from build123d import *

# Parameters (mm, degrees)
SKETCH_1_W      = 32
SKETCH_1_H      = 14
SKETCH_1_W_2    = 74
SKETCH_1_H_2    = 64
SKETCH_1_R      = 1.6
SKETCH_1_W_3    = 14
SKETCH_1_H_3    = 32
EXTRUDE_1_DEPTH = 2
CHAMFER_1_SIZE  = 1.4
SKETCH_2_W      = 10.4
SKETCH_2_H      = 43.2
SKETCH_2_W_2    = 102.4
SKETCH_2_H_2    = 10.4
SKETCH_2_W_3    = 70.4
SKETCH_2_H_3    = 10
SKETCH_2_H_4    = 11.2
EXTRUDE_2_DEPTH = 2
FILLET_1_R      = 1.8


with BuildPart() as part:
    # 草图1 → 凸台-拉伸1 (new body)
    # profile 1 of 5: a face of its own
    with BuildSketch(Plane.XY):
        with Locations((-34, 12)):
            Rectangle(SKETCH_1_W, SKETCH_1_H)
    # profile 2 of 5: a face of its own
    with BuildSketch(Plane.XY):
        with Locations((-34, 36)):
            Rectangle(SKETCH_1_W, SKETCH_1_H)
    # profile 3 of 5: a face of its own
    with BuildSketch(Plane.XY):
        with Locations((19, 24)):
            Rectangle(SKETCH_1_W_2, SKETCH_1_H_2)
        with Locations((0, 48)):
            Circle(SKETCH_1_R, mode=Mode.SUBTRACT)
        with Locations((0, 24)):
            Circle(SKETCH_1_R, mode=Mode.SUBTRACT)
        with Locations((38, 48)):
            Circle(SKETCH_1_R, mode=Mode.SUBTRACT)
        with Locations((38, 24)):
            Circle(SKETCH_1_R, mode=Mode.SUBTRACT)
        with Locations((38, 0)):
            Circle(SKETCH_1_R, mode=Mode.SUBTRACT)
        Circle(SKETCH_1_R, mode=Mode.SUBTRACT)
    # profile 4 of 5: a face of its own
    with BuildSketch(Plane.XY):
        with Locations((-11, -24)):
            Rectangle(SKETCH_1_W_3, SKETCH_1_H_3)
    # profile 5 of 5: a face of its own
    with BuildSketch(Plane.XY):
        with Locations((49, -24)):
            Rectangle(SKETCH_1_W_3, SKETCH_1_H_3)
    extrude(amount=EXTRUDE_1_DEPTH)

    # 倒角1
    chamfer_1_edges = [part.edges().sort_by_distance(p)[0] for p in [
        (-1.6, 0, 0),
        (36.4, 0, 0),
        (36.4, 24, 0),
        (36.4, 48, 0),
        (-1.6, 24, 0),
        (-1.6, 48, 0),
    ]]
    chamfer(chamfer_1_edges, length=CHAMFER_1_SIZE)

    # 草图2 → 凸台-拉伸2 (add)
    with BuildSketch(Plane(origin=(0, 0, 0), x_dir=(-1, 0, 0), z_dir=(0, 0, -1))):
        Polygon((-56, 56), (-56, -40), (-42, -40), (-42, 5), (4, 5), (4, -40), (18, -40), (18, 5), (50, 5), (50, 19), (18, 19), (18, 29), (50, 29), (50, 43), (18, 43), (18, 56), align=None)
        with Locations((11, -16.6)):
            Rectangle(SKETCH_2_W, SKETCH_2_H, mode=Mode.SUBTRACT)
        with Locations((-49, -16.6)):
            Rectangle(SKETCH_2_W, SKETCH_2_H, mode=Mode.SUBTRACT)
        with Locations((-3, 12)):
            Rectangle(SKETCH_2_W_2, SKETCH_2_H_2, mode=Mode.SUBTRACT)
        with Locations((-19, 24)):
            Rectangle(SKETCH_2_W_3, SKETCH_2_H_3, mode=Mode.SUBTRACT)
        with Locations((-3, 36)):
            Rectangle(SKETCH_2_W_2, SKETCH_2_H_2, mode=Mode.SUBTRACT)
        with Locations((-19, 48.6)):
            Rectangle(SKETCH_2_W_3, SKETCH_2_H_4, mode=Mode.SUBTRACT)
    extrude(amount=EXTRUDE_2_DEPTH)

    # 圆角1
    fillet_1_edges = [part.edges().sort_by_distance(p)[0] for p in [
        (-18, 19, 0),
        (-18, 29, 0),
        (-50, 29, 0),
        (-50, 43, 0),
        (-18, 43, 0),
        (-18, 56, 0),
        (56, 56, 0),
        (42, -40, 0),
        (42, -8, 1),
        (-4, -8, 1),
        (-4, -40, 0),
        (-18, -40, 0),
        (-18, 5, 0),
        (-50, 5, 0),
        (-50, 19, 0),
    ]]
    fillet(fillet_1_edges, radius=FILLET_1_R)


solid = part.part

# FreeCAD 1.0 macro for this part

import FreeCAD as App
import Part
import Sketcher

V = App.Vector


def edges_at(feature, points):
    """Names of the edges that pass closest to the given points."""
    edges = feature.Shape.Edges
    near = lambda p: min(range(len(edges)), key=lambda i: edges[i].distToShape(Part.Vertex(*p))[0])
    return sorted({f"Edge{near(p) + 1}" for p in points})

doc = App.newDocument("Part")
body = doc.addObject("PartDesign::Body", "Body")

# Sketch on XY plane
sketch1 = body.newObject("Sketcher::SketchObject", "Sketch")
sketch1.AttachmentSupport = (doc.getObject("XY_Plane"), [""])
sketch1.MapMode = "FlatFace"
sketch1.addGeometry([
    Part.LineSegment(V(-50, 19, 0), V(-50, 5, 0)),  # 0
    Part.LineSegment(V(-50, 5, 0), V(-18, 5, 0)),  # 1
    Part.LineSegment(V(-18, 5, 0), V(-18, -40, 0)),  # 2
    Part.LineSegment(V(-18, -40, 0), V(-4, -40, 0)),  # 3
    Part.LineSegment(V(-4, -40, 0), V(-4, -8, 0)),  # 4
    Part.LineSegment(V(-4, -8, 0), V(42, -8, 0)),  # 5
    Part.LineSegment(V(42, -8, 0), V(42, -40, 0)),  # 6
    Part.LineSegment(V(42, -40, 0), V(56, -40, 0)),  # 7
    Part.LineSegment(V(56, -40, 0), V(56, 56, 0)),  # 8
    Part.LineSegment(V(56, 56, 0), V(-18, 56, 0)),  # 9
    Part.LineSegment(V(-18, 56, 0), V(-18, 43, 0)),  # 10
    Part.LineSegment(V(-18, 43, 0), V(-50, 43, 0)),  # 11
    Part.LineSegment(V(-50, 43, 0), V(-50, 29, 0)),  # 12
    Part.LineSegment(V(-50, 29, 0), V(-18, 29, 0)),  # 13
    Part.LineSegment(V(-18, 29, 0), V(-18, 19, 0)),  # 14
    Part.LineSegment(V(-18, 19, 0), V(-50, 19, 0)),  # 15
    Part.Circle(V(38, 48, 0), V(0, 0, 1), 1.6),  # 16
    Part.Circle(V(0, 0, 0), V(0, 0, 1), 1.6),  # 17
    Part.Circle(V(38, 0, 0), V(0, 0, 1), 1.6),  # 18
    Part.Circle(V(0, 24, 0), V(0, 0, 1), 1.6),  # 19
    Part.Circle(V(0, 48, 0), V(0, 0, 1), 1.6),  # 20
    Part.Circle(V(38, 24, 0), V(0, 0, 1), 1.6),  # 21
], False)
sketch1.addConstraint([
    Sketcher.Constraint("Coincident", 0, 2, 1, 1),
    Sketcher.Constraint("Coincident", 1, 2, 2, 1),
    Sketcher.Constraint("Coincident", 2, 2, 3, 1),
    Sketcher.Constraint("Coincident", 3, 2, 4, 1),
    Sketcher.Constraint("Coincident", 4, 2, 5, 1),
    Sketcher.Constraint("Coincident", 5, 2, 6, 1),
    Sketcher.Constraint("Coincident", 6, 2, 7, 1),
    Sketcher.Constraint("Coincident", 7, 2, 8, 1),
    Sketcher.Constraint("Coincident", 8, 2, 9, 1),
    Sketcher.Constraint("Coincident", 9, 2, 10, 1),
    Sketcher.Constraint("Coincident", 10, 2, 11, 1),
    Sketcher.Constraint("Coincident", 11, 2, 12, 1),
    Sketcher.Constraint("Coincident", 12, 2, 13, 1),
    Sketcher.Constraint("Coincident", 13, 2, 14, 1),
    Sketcher.Constraint("Coincident", 14, 2, 15, 1),
    Sketcher.Constraint("Coincident", 15, 2, 0, 1),
    Sketcher.Constraint("Vertical", 0),
    Sketcher.Constraint("Horizontal", 1),
    Sketcher.Constraint("Vertical", 2),
    Sketcher.Constraint("Horizontal", 3),
    Sketcher.Constraint("Vertical", 4),
    Sketcher.Constraint("Horizontal", 5),
    Sketcher.Constraint("Vertical", 6),
    Sketcher.Constraint("Horizontal", 7),
    Sketcher.Constraint("Vertical", 8),
    Sketcher.Constraint("Horizontal", 9),
    Sketcher.Constraint("Vertical", 10),
    Sketcher.Constraint("Horizontal", 11),
    Sketcher.Constraint("Vertical", 12),
    Sketcher.Constraint("Horizontal", 13),
    Sketcher.Constraint("Vertical", 14),
    Sketcher.Constraint("Horizontal", 15),
    Sketcher.Constraint("Coincident", 17, 3, -1, 1),
    Sketcher.Constraint("Equal", 16, 17),
    Sketcher.Constraint("Equal", 17, 18),
    Sketcher.Constraint("Equal", 18, 19),
    Sketcher.Constraint("Equal", 19, 20),
    Sketcher.Constraint("Equal", 20, 21),
    Sketcher.Constraint("PointOnObject", 18, 3, -1),
    Sketcher.Constraint("PointOnObject", 19, 3, -2),
    Sketcher.Constraint("PointOnObject", 20, 3, -2),
    Sketcher.Constraint("Horizontal", 16, 3, 20, 3),
    Sketcher.Constraint("Horizontal", 19, 3, 21, 3),
    Sketcher.Constraint("Horizontal", 3, 2, 6, 2),
    Sketcher.Constraint("Vertical", 16, 3, 18, 3),
    Sketcher.Constraint("Vertical", 18, 3, 21, 3),
    Sketcher.Constraint("Vertical", 2, 2, 9, 2),
    Sketcher.Constraint("Vertical", 0, 2, 11, 2),
    Sketcher.Constraint("Vertical", 10, 2, 13, 2),
    Sketcher.Constraint("Equal", 3, 7),
    Sketcher.Constraint("Equal", 7, 0),
    Sketcher.Constraint("Equal", 15, 4),
    Sketcher.Constraint("Equal", 0, 12),
    Sketcher.Constraint("Diameter", 16, 3.2),
    Sketcher.Constraint("DistanceX", 1, 1, 1, 2, 32.0),
    Sketcher.Constraint("DistanceX", 3, 1, 3, 2, 14.0),
    Sketcher.Constraint("DistanceX", 5, 1, 5, 2, 46.0),
    Sketcher.Constraint("DistanceY", 2, 2, 2, 1, 45.0),
    Sketcher.Constraint("DistanceY", 8, 1, 8, 2, 96.0),
    Sketcher.Constraint("DistanceY", 10, 2, 10, 1, 13.0),
    Sketcher.Constraint("DistanceX", -1, 1, 16, 3, 38.0),
    Sketcher.Constraint("DistanceY", -1, 1, 16, 3, 48.0),
    Sketcher.Constraint("DistanceY", -1, 1, 19, 3, 24.0),
    Sketcher.Constraint("DistanceX", 0, 2, -1, 1, 50.0),
    Sketcher.Constraint("DistanceY", -1, 1, 0, 2, 5.0),
])
pad1 = body.newObject("PartDesign::Pad", "Pad")
pad1.Profile = sketch1
pad1.Length = 2
doc.recompute()

chamfer = body.newObject("PartDesign::Chamfer", "Chamfer")
chamfer.Base = (pad1, edges_at(pad1, [
    (-1.6, 0, 0),
    (36.4, 0, 0),
    (36.4, 24, 0),
    (36.4, 48, 0),
    (-1.6, 24, 0),
    (-1.6, 48, 0),
]))
chamfer.Size = 1.4

# Sketch on XY plane
sketch2 = body.newObject("Sketcher::SketchObject", "Sketch001")
sketch2.AttachmentSupport = (doc.getObject("XY_Plane"), [""])
sketch2.MapMode = "FlatFace"
sketch2.addGeometry([
    Part.LineSegment(V(56, 56, 0), V(56, -40, 0)),  # 0
    Part.LineSegment(V(56, -40, 0), V(42, -40, 0)),  # 1
    Part.LineSegment(V(42, -40, 0), V(42, 5, 0)),  # 2
    Part.LineSegment(V(42, 5, 0), V(-4, 5, 0)),  # 3
    Part.LineSegment(V(-4, 5, 0), V(-4, -40, 0)),  # 4
    Part.LineSegment(V(-4, -40, 0), V(-18, -40, 0)),  # 5
    Part.LineSegment(V(-18, -40, 0), V(-18, 5, 0)),  # 6
    Part.LineSegment(V(-18, 5, 0), V(-50, 5, 0)),  # 7
    Part.LineSegment(V(-50, 5, 0), V(-50, 19, 0)),  # 8
    Part.LineSegment(V(-50, 19, 0), V(-18, 19, 0)),  # 9
    Part.LineSegment(V(-18, 19, 0), V(-18, 29, 0)),  # 10
    Part.LineSegment(V(-18, 29, 0), V(-50, 29, 0)),  # 11
    Part.LineSegment(V(-50, 29, 0), V(-50, 43, 0)),  # 12
    Part.LineSegment(V(-50, 43, 0), V(-18, 43, 0)),  # 13
    Part.LineSegment(V(-18, 43, 0), V(-18, 56, 0)),  # 14
    Part.LineSegment(V(-18, 56, 0), V(56, 56, 0)),  # 15
    Part.LineSegment(V(44, -38, 0), V(54, -38, 0)),  # 16
    Part.LineSegment(V(54, -38, 0), V(54, 5, 0)),  # 17
    Part.LineSegment(V(54, 5, 0), V(44, 5, 0)),  # 18
    Part.LineSegment(V(44, 5, 0), V(44, -38, 0)),  # 19
    Part.LineSegment(V(-16, -38, 0), V(-6, -38, 0)),  # 20
    Part.LineSegment(V(-6, -38, 0), V(-6, 5, 0)),  # 21
    Part.LineSegment(V(-6, 5, 0), V(-16, 5, 0)),  # 22
    Part.LineSegment(V(-16, 5, 0), V(-16, -38, 0)),  # 23
    Part.LineSegment(V(-16, 19, 0), V(54, 19, 0)),  # 24
    Part.LineSegment(V(54, 19, 0), V(54, 29, 0)),  # 25
    Part.LineSegment(V(54, 29, 0), V(-16, 29, 0)),  # 26
    Part.LineSegment(V(-16, 29, 0), V(-16, 19, 0)),  # 27
    Part.LineSegment(V(-16, 43, 0), V(54, 43, 0)),  # 28
    Part.LineSegment(V(54, 43, 0), V(54, 54, 0)),  # 29
    Part.LineSegment(V(54, 54, 0), V(-16, 54, 0)),  # 30
    Part.LineSegment(V(-16, 54, 0), V(-16, 43, 0)),  # 31
    Part.LineSegment(V(-48, 7, 0), V(54, 7, 0)),  # 32
    Part.LineSegment(V(54, 7, 0), V(54, 17, 0)),  # 33
    Part.LineSegment(V(54, 17, 0), V(-48, 17, 0)),  # 34
    Part.LineSegment(V(-48, 17, 0), V(-48, 7, 0)),  # 35
    Part.LineSegment(V(-48, 31, 0), V(54, 31, 0)),  # 36
    Part.LineSegment(V(54, 31, 0), V(54, 41, 0)),  # 37
    Part.LineSegment(V(54, 41, 0), V(-48, 41, 0)),  # 38
    Part.LineSegment(V(-48, 41, 0), V(-48, 31, 0)),  # 39
], False)
sketch2.addConstraint([
    Sketcher.Constraint("Coincident", 0, 2, 1, 1),
    Sketcher.Constraint("Coincident", 1, 2, 2, 1),
    Sketcher.Constraint("Coincident", 2, 2, 3, 1),
    Sketcher.Constraint("Coincident", 3, 2, 4, 1),
    Sketcher.Constraint("Coincident", 4, 2, 5, 1),
    Sketcher.Constraint("Coincident", 5, 2, 6, 1),
    Sketcher.Constraint("Coincident", 6, 2, 7, 1),
    Sketcher.Constraint("Coincident", 7, 2, 8, 1),
    Sketcher.Constraint("Coincident", 8, 2, 9, 1),
    Sketcher.Constraint("Coincident", 9, 2, 10, 1),
    Sketcher.Constraint("Coincident", 10, 2, 11, 1),
    Sketcher.Constraint("Coincident", 11, 2, 12, 1),
    Sketcher.Constraint("Coincident", 12, 2, 13, 1),
    Sketcher.Constraint("Coincident", 13, 2, 14, 1),
    Sketcher.Constraint("Coincident", 14, 2, 15, 1),
    Sketcher.Constraint("Coincident", 15, 2, 0, 1),
    Sketcher.Constraint("Coincident", 16, 2, 17, 1),
    Sketcher.Constraint("Coincident", 17, 2, 18, 1),
    Sketcher.Constraint("Coincident", 18, 2, 19, 1),
    Sketcher.Constraint("Coincident", 19, 2, 16, 1),
    Sketcher.Constraint("Coincident", 20, 2, 21, 1),
    Sketcher.Constraint("Coincident", 21, 2, 22, 1),
    Sketcher.Constraint("Coincident", 22, 2, 23, 1),
    Sketcher.Constraint("Coincident", 23, 2, 20, 1),
    Sketcher.Constraint("Coincident", 24, 2, 25, 1),
    Sketcher.Constraint("Coincident", 25, 2, 26, 1),
    Sketcher.Constraint("Coincident", 26, 2, 27, 1),
    Sketcher.Constraint("Coincident", 27, 2, 24, 1),
    Sketcher.Constraint("Coincident", 28, 2, 29, 1),
    Sketcher.Constraint("Coincident", 29, 2, 30, 1),
    Sketcher.Constraint("Coincident", 30, 2, 31, 1),
    Sketcher.Constraint("Coincident", 31, 2, 28, 1),
    Sketcher.Constraint("Coincident", 32, 2, 33, 1),
    Sketcher.Constraint("Coincident", 33, 2, 34, 1),
    Sketcher.Constraint("Coincident", 34, 2, 35, 1),
    Sketcher.Constraint("Coincident", 35, 2, 32, 1),
    Sketcher.Constraint("Coincident", 36, 2, 37, 1),
    Sketcher.Constraint("Coincident", 37, 2, 38, 1),
    Sketcher.Constraint("Coincident", 38, 2, 39, 1),
    Sketcher.Constraint("Coincident", 39, 2, 36, 1),
    Sketcher.Constraint("Vertical", 0),
    Sketcher.Constraint("Horizontal", 1),
    Sketcher.Constraint("Vertical", 2),
    Sketcher.Constraint("Horizontal", 3),
    Sketcher.Constraint("Vertical", 4),
    Sketcher.Constraint("Horizontal", 5),
    Sketcher.Constraint("Vertical", 6),
    Sketcher.Constraint("Horizontal", 7),
    Sketcher.Constraint("Vertical", 8),
    Sketcher.Constraint("Horizontal", 9),
    Sketcher.Constraint("Vertical", 10),
    Sketcher.Constraint("Horizontal", 11),
    Sketcher.Constraint("Vertical", 12),
    Sketcher.Constraint("Horizontal", 13),
    Sketcher.Constraint("Vertical", 14),
    Sketcher.Constraint("Horizontal", 15),
    Sketcher.Constraint("Horizontal", 16),
    Sketcher.Constraint("Vertical", 17),
    Sketcher.Constraint("Horizontal", 18),
    Sketcher.Constraint("Vertical", 19),
    Sketcher.Constraint("Horizontal", 20),
    Sketcher.Constraint("Vertical", 21),
    Sketcher.Constraint("Horizontal", 22),
    Sketcher.Constraint("Vertical", 23),
    Sketcher.Constraint("Horizontal", 24),
    Sketcher.Constraint("Vertical", 25),
    Sketcher.Constraint("Horizontal", 26),
    Sketcher.Constraint("Vertical", 27),
    Sketcher.Constraint("Horizontal", 28),
    Sketcher.Constraint("Vertical", 29),
    Sketcher.Constraint("Horizontal", 30),
    Sketcher.Constraint("Vertical", 31),
    Sketcher.Constraint("Horizontal", 32),
    Sketcher.Constraint("Vertical", 33),
    Sketcher.Constraint("Horizontal", 34),
    Sketcher.Constraint("Vertical", 35),
    Sketcher.Constraint("Horizontal", 36),
    Sketcher.Constraint("Vertical", 37),
    Sketcher.Constraint("Horizontal", 38),
    Sketcher.Constraint("Vertical", 39),
    Sketcher.Constraint("Horizontal", 1, 2, 4, 2),
    Sketcher.Constraint("Horizontal", 3, 2, 6, 2),
    Sketcher.Constraint("Horizontal", 7, 2, 17, 2),
    Sketcher.Constraint("Horizontal", 19, 2, 20, 2),
    Sketcher.Constraint("Horizontal", 18, 2, 21, 2),
    Sketcher.Constraint("Horizontal", 9, 2, 24, 2),
    Sketcher.Constraint("Horizontal", 11, 2, 25, 2),
    Sketcher.Constraint("Horizontal", 13, 2, 28, 2),
    Sketcher.Constraint("Vertical", 6, 2, 9, 2),
    Sketcher.Constraint("Vertical", 8, 2, 11, 2),
    Sketcher.Constraint("Vertical", 10, 2, 13, 2),
    Sketcher.Constraint("Vertical", 17, 2, 24, 2),
    Sketcher.Constraint("Vertical", 23, 2, 26, 2),
    Sketcher.Constraint("Vertical", 25, 2, 28, 2),
    Sketcher.Constraint("Vertical", 27, 2, 30, 2),
    Sketcher.Constraint("Vertical", 29, 2, 32, 2),
    Sketcher.Constraint("Vertical", 33, 2, 36, 2),
    Sketcher.Constraint("Vertical", 35, 2, 38, 2),
    Sketcher.Constraint("Equal", 1, 5),
    Sketcher.Constraint("Equal", 18, 20),
    Sketcher.Constraint("Equal", 5, 8),
    Sketcher.Constraint("Equal", 8, 12),
    Sketcher.Constraint("Equal", 22, 33),
    Sketcher.Constraint("Equal", 35, 37),
    Sketcher.Constraint("DistanceX", 1, 2, 1, 1, 14.0),
    Sketcher.Constraint("DistanceX", 3, 2, 3, 1, 46.0),
    Sketcher.Constraint("DistanceX", 7, 2, 7, 1, 32.0),
    Sketcher.Constraint("DistanceY", 0, 2, 0, 1, 96.0),
    Sketcher.Constraint("DistanceY", 2, 1, 2, 2, 45.0),
    Sketcher.Constraint("DistanceY", 10, 1, 10, 2, 10.0),
    Sketcher.Constraint("DistanceX", 16, 1, 16, 2, 10.4),
    Sketcher.Constraint("DistanceX", 24, 1, 24, 2, 70.4),
    Sketcher.Constraint("DistanceX", 32, 1, 32, 2, 102.4),
    Sketcher.Constraint("DistanceY", 17, 1, 17, 2, 43.2),
    Sketcher.Constraint("DistanceY", 29, 1, 29, 2, 11.2),
    Sketcher.Constraint("DistanceX", -1, 1, 0, 2, 56.0),
    Sketcher.Constraint("DistanceY", 0, 2, -1, 1, 40.0),
    Sketcher.Constraint("DistanceY", 37, 2, 29, 2, 13.0),
    Sketcher.Constraint("DistanceY", 34, 2, 38, 2, 24.0),
    Sketcher.Constraint("DistanceX", -1, 1, 16, 2, 54.2),
])
pad2 = body.newObject("PartDesign::Pad", "Pad001")
pad2.Profile = sketch2
pad2.Length = 2
pad2.Reversed = True
doc.recompute()

fillet = body.newObject("PartDesign::Fillet", "Fillet")
fillet.Base = (pad2, edges_at(pad2, [
    (-18, 19, 0),
    (-18, 29, 0),
    (-50, 29, 0),
    (-50, 43, 0),
    (-18, 43, 0),
    (-18, 56, 0),
    (56, 56, 0),
    (42, -40, 0),
    (42, -8, 1),
    (-4, -8, 1),
    (-4, -40, 0),
    (-18, -40, 0),
    (-18, 5, 0),
    (-50, 5, 0),
    (-50, 19, 0),
]))
fillet.Radius = 1.8

doc.recompute()
